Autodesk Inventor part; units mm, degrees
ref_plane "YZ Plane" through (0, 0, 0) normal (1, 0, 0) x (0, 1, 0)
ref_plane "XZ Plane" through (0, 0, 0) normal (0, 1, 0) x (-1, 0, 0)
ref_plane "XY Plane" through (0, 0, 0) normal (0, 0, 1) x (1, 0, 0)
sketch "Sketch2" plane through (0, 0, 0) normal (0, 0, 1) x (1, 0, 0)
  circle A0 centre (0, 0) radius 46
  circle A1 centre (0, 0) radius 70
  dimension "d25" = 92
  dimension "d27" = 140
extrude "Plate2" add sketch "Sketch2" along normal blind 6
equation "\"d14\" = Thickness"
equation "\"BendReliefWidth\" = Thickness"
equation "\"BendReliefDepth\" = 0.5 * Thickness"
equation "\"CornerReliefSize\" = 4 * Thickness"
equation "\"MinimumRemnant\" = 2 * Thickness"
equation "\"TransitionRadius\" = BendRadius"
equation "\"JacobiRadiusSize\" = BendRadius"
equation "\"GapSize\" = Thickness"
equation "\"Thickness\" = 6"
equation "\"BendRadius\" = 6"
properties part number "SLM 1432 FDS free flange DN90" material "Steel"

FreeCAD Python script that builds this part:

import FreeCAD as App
import Part
import Sketcher

V = App.Vector
Q = App.Units.Quantity

doc = App.newDocument("Part")
body = doc.addObject("PartDesign::Body", "Body")

# Sketch on XY plane
sketch1 = body.newObject("Sketcher::SketchObject", "Sketch")
sketch1.AttachmentSupport = (doc.getObject("XY_Plane"), [""])
sketch1.MapMode = "FlatFace"
sketch1.addGeometry(Part.Circle(V(0, 0, 0), V(0, 0, 1), 70), False)
sketch1.addGeometry(Part.Circle(V(0, 0, 0), V(0, 0, 1), 46), False)
sketch1.addConstraint(Sketcher.Constraint("Coincident", 0, 3, -1, 1))
sketch1.addConstraint(Sketcher.Constraint("Coincident", 1, 3, -1, 1))
sketch1.addConstraint(Sketcher.Constraint("Diameter", 0, Q("140 mm")))
sketch1.addConstraint(Sketcher.Constraint("Diameter", 1, Q("92 mm")))
pad1 = body.newObject("PartDesign::Pad", "Pad")
pad1.Profile = sketch1
pad1.Length = 6

doc.recompute()
